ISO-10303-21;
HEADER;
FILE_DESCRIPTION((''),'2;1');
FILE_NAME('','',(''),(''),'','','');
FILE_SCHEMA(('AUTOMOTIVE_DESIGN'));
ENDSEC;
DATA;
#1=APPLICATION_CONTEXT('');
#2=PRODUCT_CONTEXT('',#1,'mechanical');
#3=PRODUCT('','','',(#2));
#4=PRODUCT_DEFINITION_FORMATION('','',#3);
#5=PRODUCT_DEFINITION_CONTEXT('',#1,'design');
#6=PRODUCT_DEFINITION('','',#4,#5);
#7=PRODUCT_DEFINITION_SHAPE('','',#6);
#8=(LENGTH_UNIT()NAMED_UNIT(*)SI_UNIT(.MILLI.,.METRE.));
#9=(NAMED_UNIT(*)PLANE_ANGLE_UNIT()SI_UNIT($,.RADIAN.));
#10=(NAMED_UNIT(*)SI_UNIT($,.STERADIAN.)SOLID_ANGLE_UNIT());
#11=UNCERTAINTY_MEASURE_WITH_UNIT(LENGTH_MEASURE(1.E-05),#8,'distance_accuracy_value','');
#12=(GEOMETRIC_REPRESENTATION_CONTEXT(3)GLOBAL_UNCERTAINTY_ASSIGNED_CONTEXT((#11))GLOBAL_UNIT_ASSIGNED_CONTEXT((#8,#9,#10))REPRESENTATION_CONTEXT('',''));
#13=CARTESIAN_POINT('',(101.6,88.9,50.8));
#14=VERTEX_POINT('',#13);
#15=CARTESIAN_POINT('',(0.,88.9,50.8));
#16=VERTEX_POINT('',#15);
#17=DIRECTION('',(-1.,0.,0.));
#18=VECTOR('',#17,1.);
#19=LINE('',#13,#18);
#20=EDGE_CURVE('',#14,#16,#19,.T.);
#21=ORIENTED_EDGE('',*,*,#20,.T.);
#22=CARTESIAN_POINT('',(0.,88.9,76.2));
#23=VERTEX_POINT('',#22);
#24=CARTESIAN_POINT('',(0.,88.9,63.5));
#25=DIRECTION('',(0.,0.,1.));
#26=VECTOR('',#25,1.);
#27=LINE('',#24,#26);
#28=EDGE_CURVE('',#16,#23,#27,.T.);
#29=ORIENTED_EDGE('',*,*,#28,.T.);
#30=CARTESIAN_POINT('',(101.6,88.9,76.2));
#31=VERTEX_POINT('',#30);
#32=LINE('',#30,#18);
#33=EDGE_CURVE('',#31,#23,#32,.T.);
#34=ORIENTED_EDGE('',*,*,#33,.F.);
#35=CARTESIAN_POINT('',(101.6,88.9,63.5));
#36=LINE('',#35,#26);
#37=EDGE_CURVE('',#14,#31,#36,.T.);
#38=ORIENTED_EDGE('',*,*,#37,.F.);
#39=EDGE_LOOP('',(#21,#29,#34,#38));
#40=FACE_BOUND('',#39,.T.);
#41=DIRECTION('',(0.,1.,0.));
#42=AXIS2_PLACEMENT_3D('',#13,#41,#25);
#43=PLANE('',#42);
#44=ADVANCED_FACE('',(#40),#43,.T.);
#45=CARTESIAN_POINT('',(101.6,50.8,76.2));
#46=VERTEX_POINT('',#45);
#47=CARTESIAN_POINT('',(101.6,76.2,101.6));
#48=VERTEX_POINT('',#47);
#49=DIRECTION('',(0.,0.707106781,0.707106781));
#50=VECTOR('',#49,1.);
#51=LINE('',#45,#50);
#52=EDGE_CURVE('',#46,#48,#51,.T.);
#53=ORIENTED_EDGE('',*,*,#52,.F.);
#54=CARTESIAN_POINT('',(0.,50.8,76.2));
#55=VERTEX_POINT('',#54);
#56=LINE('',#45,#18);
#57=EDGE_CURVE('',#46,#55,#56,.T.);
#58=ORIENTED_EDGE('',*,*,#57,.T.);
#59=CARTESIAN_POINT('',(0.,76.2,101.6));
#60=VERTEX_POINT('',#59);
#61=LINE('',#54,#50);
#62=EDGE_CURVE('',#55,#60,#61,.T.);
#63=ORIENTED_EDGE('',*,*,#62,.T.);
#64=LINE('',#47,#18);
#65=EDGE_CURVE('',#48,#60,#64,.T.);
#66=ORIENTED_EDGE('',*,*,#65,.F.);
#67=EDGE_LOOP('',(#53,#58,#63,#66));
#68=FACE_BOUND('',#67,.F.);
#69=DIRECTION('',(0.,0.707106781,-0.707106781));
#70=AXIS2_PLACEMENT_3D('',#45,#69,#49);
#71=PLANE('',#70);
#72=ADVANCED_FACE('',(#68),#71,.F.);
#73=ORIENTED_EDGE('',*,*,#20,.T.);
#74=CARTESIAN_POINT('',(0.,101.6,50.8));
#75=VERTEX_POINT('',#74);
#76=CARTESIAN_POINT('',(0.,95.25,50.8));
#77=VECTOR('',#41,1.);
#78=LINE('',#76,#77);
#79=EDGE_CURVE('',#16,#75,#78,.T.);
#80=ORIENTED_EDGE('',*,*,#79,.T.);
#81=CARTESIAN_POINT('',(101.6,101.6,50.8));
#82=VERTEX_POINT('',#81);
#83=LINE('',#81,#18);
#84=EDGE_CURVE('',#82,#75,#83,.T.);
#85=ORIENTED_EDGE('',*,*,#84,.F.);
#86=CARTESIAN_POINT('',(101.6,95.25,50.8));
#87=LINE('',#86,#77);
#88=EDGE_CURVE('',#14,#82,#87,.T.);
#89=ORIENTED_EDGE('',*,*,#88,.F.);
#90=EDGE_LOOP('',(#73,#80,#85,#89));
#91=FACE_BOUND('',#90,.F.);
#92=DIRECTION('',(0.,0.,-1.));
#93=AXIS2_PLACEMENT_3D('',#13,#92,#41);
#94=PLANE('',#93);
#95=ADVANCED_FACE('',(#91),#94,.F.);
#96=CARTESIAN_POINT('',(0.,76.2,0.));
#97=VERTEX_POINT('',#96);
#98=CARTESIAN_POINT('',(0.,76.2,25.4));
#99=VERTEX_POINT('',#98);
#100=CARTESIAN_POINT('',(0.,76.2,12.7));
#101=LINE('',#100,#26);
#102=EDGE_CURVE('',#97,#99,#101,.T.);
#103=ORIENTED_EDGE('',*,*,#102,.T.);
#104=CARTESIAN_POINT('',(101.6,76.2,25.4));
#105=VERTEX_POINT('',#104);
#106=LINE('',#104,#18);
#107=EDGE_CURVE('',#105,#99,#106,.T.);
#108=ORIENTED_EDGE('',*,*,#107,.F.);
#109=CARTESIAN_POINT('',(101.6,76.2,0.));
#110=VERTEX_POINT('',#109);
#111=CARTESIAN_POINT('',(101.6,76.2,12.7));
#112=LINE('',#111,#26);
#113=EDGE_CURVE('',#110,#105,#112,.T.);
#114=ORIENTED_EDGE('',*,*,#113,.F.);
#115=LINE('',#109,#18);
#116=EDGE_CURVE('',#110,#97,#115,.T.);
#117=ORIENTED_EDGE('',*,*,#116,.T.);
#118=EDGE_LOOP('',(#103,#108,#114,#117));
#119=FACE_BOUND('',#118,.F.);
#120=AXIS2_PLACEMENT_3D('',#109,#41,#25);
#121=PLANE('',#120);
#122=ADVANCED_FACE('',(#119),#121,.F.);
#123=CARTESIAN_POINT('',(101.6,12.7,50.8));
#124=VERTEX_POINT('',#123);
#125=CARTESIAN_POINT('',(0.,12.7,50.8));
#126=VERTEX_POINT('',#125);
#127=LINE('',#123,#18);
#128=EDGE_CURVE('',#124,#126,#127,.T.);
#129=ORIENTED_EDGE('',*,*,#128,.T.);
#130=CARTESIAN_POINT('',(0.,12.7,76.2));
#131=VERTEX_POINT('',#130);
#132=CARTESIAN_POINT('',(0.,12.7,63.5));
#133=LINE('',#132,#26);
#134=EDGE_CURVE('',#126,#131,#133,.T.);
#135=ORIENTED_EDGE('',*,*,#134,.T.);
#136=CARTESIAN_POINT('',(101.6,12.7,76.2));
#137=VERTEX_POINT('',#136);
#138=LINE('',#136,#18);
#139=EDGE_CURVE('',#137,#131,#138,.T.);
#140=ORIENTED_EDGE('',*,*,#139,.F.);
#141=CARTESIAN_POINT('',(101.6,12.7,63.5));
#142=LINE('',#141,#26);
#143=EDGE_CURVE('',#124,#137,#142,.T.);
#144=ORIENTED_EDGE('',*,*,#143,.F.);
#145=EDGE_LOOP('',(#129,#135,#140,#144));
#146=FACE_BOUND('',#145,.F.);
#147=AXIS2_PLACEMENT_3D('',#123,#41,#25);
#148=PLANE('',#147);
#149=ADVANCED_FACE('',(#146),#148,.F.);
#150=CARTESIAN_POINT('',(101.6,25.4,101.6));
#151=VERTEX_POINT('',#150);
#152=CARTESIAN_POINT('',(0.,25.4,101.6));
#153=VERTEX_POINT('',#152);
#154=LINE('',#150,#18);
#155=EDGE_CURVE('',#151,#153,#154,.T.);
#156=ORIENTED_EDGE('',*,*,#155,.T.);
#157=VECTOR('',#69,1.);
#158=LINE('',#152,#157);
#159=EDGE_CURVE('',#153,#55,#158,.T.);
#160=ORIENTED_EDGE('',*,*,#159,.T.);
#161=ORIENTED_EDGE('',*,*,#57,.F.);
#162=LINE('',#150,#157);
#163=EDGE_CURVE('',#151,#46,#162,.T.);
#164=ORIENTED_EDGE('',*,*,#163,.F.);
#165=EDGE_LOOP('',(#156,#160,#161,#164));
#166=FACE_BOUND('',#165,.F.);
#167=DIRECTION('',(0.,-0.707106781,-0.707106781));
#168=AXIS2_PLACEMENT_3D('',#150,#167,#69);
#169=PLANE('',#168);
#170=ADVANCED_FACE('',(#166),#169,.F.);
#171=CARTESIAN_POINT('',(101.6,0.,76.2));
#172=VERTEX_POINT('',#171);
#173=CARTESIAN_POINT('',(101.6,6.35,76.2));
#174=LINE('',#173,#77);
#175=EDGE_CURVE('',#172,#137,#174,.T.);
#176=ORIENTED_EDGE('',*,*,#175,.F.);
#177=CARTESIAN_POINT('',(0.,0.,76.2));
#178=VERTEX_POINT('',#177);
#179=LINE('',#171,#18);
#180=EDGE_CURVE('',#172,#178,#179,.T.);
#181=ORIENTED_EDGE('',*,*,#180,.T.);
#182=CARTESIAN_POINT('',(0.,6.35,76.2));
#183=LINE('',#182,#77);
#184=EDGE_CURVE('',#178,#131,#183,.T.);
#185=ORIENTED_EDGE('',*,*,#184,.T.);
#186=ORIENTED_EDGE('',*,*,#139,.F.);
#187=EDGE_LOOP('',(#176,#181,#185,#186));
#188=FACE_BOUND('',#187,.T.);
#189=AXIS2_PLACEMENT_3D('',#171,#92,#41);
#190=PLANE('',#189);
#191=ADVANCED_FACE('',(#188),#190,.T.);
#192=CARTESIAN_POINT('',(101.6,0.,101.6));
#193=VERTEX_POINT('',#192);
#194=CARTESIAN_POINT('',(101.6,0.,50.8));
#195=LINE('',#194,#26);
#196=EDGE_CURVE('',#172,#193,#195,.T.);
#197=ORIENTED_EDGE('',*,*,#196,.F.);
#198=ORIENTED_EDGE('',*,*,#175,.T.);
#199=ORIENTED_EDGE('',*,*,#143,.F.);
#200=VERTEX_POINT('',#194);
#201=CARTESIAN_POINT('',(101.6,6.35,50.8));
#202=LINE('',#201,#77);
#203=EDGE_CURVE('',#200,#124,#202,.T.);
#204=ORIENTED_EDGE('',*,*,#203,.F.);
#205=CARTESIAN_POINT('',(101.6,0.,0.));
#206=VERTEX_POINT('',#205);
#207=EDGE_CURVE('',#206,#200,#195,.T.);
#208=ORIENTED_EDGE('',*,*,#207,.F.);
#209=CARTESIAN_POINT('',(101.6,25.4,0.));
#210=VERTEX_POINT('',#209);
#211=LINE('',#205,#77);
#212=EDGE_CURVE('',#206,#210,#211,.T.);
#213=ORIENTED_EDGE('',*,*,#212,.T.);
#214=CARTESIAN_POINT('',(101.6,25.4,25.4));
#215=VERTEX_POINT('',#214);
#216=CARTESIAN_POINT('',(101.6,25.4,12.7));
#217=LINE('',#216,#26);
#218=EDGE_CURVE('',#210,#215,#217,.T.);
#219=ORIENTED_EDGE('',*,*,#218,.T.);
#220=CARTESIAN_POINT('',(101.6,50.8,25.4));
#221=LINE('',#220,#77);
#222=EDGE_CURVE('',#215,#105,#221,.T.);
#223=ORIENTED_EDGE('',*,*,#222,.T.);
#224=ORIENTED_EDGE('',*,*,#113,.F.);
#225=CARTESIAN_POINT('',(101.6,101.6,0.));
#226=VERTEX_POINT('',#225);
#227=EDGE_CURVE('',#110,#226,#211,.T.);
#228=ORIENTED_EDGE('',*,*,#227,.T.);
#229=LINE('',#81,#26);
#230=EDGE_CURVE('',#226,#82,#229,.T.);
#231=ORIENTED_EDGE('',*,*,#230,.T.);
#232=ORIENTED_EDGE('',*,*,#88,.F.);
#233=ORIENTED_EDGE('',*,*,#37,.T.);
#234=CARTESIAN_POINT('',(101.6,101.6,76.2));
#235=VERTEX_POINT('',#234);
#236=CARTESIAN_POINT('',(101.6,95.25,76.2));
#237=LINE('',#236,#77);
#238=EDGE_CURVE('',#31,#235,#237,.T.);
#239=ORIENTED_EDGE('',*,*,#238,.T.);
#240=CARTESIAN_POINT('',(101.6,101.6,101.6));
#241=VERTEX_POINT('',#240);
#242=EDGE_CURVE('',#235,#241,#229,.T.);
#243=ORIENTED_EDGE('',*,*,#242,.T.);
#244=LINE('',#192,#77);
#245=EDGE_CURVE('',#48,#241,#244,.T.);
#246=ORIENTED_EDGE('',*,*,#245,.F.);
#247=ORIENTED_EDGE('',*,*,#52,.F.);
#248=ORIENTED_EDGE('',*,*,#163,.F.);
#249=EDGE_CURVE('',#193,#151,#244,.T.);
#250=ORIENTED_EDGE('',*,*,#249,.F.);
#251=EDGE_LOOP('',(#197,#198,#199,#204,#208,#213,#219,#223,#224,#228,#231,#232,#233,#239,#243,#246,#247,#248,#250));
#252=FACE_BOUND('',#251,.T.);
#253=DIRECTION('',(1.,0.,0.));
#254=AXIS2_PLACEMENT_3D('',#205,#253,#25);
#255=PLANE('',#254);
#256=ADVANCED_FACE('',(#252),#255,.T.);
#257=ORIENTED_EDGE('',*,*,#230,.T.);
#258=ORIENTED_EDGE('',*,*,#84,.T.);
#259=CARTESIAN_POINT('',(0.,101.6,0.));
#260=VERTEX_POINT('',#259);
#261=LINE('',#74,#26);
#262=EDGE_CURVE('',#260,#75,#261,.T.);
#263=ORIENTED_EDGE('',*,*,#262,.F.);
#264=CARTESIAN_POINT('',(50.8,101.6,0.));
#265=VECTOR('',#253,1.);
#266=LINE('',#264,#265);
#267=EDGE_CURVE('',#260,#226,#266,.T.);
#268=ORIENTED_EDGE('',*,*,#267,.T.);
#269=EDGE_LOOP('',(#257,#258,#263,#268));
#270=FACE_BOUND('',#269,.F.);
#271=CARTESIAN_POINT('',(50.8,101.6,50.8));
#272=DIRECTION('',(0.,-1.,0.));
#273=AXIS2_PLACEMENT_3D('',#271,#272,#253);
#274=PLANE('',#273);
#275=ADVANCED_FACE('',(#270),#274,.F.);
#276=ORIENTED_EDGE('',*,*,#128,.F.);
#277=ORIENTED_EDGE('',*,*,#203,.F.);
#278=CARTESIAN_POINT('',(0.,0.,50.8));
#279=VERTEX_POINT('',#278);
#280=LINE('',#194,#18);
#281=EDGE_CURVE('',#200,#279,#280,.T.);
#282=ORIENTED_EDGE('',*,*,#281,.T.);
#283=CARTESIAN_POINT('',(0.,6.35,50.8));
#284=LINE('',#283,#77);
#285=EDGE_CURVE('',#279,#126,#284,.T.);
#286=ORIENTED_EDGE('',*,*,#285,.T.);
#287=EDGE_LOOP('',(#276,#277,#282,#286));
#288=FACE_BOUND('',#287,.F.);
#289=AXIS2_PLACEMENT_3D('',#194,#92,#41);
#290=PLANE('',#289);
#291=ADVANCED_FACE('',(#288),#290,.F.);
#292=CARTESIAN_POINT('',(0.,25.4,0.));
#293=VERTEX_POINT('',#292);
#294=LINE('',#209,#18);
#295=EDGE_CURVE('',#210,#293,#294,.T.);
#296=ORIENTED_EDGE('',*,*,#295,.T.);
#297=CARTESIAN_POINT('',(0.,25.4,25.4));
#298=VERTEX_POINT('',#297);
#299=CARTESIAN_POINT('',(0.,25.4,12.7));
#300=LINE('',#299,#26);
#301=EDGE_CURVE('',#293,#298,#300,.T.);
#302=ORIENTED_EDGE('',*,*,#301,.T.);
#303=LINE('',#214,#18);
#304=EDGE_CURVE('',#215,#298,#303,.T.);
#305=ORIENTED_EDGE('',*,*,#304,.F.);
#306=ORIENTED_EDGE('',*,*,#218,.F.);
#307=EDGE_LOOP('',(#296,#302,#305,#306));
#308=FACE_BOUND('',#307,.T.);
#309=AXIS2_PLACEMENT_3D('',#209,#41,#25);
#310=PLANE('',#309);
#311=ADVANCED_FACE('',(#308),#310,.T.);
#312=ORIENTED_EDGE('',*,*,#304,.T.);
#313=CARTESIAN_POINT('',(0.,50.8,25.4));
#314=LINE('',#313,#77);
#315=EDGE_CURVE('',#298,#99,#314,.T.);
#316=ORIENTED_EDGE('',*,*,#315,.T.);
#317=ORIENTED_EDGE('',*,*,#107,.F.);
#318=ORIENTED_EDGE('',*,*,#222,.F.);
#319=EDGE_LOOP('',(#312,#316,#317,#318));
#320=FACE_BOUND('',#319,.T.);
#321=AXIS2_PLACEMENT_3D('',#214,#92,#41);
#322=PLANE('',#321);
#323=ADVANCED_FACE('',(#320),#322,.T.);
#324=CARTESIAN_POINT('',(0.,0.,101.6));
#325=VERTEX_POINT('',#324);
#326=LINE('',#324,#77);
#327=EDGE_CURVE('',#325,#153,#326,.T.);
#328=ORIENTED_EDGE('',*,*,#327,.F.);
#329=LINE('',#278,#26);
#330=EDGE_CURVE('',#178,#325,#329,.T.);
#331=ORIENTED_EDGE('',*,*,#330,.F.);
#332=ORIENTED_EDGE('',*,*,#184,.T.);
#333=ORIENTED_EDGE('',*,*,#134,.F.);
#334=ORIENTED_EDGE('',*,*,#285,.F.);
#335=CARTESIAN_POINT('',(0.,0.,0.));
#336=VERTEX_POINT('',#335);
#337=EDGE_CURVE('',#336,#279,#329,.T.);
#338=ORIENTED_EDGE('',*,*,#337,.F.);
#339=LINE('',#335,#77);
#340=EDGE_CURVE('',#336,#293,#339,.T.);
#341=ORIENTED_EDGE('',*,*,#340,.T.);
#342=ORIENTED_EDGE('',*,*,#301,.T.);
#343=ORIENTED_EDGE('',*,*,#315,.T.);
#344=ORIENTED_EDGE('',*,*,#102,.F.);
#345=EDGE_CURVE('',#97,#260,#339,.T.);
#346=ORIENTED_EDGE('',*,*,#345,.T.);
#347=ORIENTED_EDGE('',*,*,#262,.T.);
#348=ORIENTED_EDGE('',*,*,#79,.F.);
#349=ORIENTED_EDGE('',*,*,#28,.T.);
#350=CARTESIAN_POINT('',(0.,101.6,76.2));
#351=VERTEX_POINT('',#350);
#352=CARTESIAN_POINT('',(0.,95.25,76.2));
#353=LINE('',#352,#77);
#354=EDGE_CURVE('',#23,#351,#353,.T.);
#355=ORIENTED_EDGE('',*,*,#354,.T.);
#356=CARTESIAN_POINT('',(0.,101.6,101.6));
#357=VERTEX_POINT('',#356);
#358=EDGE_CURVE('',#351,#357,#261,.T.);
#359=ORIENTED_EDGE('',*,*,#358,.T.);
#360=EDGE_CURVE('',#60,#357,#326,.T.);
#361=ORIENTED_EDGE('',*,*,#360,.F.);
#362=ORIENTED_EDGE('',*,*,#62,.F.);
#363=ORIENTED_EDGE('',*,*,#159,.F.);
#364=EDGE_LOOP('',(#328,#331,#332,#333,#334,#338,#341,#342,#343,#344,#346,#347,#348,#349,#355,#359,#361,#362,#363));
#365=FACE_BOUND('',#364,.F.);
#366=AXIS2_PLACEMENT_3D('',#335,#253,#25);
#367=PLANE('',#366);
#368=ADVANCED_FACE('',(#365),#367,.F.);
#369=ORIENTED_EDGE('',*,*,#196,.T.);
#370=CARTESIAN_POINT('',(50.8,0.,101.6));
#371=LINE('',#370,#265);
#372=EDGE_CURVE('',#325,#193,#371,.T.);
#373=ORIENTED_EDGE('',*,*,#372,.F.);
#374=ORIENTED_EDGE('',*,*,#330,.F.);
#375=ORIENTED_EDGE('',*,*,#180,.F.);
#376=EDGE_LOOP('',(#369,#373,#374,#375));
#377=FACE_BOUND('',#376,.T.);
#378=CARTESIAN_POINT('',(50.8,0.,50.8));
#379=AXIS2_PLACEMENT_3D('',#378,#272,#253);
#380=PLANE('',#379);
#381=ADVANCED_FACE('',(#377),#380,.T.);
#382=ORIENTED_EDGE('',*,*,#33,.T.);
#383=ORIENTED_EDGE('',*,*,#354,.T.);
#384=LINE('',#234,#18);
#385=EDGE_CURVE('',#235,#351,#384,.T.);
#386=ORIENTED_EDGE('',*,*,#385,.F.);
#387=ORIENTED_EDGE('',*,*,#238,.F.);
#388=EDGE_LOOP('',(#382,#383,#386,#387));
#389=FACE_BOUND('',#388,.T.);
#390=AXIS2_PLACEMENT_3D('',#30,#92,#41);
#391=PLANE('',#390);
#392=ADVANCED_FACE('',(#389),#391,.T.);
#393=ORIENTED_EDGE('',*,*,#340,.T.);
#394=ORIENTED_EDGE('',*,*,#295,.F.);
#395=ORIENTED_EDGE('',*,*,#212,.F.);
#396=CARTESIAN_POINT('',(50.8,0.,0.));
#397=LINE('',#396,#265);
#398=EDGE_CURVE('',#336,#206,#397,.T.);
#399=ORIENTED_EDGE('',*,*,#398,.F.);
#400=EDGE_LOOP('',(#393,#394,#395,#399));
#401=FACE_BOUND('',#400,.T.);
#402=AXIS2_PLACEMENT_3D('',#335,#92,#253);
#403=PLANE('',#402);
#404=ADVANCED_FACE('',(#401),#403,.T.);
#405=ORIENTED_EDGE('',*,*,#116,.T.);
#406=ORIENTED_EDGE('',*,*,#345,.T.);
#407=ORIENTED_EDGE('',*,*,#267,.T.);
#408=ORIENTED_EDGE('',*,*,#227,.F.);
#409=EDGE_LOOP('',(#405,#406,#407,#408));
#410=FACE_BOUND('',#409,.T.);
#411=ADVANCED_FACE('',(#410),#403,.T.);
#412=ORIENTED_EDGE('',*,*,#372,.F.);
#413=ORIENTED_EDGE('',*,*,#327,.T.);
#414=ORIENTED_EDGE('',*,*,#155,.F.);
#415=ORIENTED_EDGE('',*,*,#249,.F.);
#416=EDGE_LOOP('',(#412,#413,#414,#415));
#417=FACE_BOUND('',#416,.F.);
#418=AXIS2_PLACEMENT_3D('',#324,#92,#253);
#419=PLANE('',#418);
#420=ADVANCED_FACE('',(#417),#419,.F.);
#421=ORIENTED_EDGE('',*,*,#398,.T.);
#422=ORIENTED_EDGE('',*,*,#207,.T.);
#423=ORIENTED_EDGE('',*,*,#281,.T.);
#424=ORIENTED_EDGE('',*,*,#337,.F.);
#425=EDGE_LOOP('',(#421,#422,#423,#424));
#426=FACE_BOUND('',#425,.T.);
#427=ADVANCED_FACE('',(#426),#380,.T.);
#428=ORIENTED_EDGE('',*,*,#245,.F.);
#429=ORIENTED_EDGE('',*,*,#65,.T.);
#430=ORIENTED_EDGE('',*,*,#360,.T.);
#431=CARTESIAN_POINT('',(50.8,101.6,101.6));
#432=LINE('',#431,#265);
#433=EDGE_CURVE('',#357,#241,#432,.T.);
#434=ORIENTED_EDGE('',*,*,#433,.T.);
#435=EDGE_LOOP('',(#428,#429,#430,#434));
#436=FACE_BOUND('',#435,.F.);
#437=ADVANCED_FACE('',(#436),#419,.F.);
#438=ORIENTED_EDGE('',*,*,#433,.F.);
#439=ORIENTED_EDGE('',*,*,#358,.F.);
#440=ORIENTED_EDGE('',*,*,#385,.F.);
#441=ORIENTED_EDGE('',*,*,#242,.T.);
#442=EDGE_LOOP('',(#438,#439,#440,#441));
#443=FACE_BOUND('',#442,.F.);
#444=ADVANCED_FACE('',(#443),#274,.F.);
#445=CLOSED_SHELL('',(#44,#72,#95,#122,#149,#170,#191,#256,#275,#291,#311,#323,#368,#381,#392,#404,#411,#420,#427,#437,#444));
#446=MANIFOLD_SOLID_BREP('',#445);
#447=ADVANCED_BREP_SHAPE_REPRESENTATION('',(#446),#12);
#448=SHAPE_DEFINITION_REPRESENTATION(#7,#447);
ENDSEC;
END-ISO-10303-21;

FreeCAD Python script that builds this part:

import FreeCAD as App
import Part
import Sketcher
Q = App.Units.Quantity


def add_polygon(sketch, points):
    """Adds a closed chain of lines whose ends are joined by coincident constraints."""
    first, n = sketch.GeometryCount, len(points)
    for a, b in zip(points, points[1:] + points[:1]):
        sketch.addGeometry(Part.LineSegment(App.Vector(*a, 0), App.Vector(*b, 0)), False)
    for i in range(n):
        sketch.addConstraint(Sketcher.Constraint("Coincident", first + i, 2, first + (i + 1) % n, 1))

doc = App.newDocument("Part")
body = doc.addObject("PartDesign::Body", "Body")

sketch1 = doc.addObject("Sketcher::SketchObject", "Sketch")
body.addObject(sketch1)
sketch1.AttachmentSupport = (doc.XZ_Plane, [""])
sketch1.MapMode = "FlatFace"
add_polygon(sketch1, [(0, 102), (0, 0), (102, 0), (102, 102)])
sketch1.addConstraint([
    Sketcher.Constraint("Vertical", 0),
    Sketcher.Constraint("Horizontal", 1),
    Sketcher.Constraint("Vertical", 2),
    Sketcher.Constraint("Horizontal", 3),
    Sketcher.Constraint("Coincident", 0, 2, -1, 1),
    Sketcher.Constraint("Equal", 3, 0),
    Sketcher.Constraint("DistanceX", 1, 1, 1, 2, Q("4 in")),
])
pad1 = doc.addObject("PartDesign::Pad", "Pad")
body.addObject(pad1)
pad1.Profile = sketch1
pad1.Length = Q("4 in")
pad1.Reversed = True

sketch2 = doc.addObject("Sketcher::SketchObject", "Sketch001")
body.addObject(sketch2)
sketch2.AttachmentSupport = (doc.YZ_Plane, [""])
sketch2.MapMode = "FlatFace"
sketch2.AttachmentOffset = App.Placement(App.Vector(0, 0, 4 * 25.4), App.Rotation())
add_polygon(sketch2, [(0, 76), (0, 51), (13, 51), (13, 76)])
sketch2.addConstraint([
    Sketcher.Constraint("Vertical", 0),
    Sketcher.Constraint("Horizontal", 1),
    Sketcher.Constraint("Vertical", 2),
    Sketcher.Constraint("Horizontal", 3),
    Sketcher.Constraint("PointOnObject", 0, 2, -2),
    Sketcher.Constraint("DistanceY", 0, 2, 0, 1, Q("1 in")),
    Sketcher.Constraint("DistanceX", 1, 1, 1, 2, Q("0.5 in")),
    Sketcher.Constraint("DistanceY", -1, 1, 0, 2, Q("2 in")),
])
pocket1 = doc.addObject("PartDesign::Pocket", "Pocket")
body.addObject(pocket1)
pocket1.Profile = sketch2
pocket1.Length = Q("4 in")

sketch3 = doc.addObject("Sketcher::SketchObject", "Sketch002")
body.addObject(sketch3)
sketch3.AttachmentSupport = (doc.YZ_Plane, [""])
sketch3.MapMode = "FlatFace"
sketch3.AttachmentOffset = App.Placement(App.Vector(0, 0, 4 * 25.4), App.Rotation())
add_polygon(sketch3, [(89, 76), (89, 51), (102, 51), (102, 76)])
sketch3.addConstraint([
    Sketcher.Constraint("Vertical", 0),
    Sketcher.Constraint("Horizontal", 1),
    Sketcher.Constraint("Vertical", 2),
    Sketcher.Constraint("Horizontal", 3),
    Sketcher.Constraint("DistanceY", 0, 2, 0, 1, Q("1 in")),
    Sketcher.Constraint("DistanceX", 1, 1, 1, 2, Q("0.5 in")),
    Sketcher.Constraint("DistanceY", -1, 1, 0, 2, Q("2 in")),
    Sketcher.Constraint("DistanceX", -1, 1, 1, 2, Q("4 in")),
])
pocket2 = doc.addObject("PartDesign::Pocket", "Pocket001")
body.addObject(pocket2)
pocket2.Profile = sketch3
pocket2.Length = Q("4 in")

sketch4 = doc.addObject("Sketcher::SketchObject", "Sketch003")
body.addObject(sketch4)
sketch4.AttachmentSupport = (doc.YZ_Plane, [""])
sketch4.MapMode = "FlatFace"
sketch4.AttachmentOffset = App.Placement(App.Vector(0, 0, 4 * 25.4), App.Rotation())
add_polygon(sketch4, [(25, 25), (25, 0), (76, 0), (76, 25)])
sketch4.addConstraint([
    Sketcher.Constraint("Vertical", 0),
    Sketcher.Constraint("Horizontal", 1),
    Sketcher.Constraint("Vertical", 2),
    Sketcher.Constraint("Horizontal", 3),
    Sketcher.Constraint("PointOnObject", 0, 2, -1),
    Sketcher.Constraint("DistanceX", 1, 1, 1, 2, Q("2 in")),
    Sketcher.Constraint("DistanceY", 0, 2, 0, 1, Q("1 in")),
    Sketcher.Constraint("DistanceX", -1, 1, 0, 2, Q("1 in")),
])
pocket3 = doc.addObject("PartDesign::Pocket", "Pocket002")
body.addObject(pocket3)
pocket3.Profile = sketch4
pocket3.Length = Q("4 in")

sketch5 = doc.addObject("Sketcher::SketchObject", "Sketch004")
body.addObject(sketch5)
sketch5.AttachmentSupport = (doc.YZ_Plane, [""])
sketch5.MapMode = "FlatFace"
sketch5.AttachmentOffset = App.Placement(App.Vector(0, 0, 4 * 25.4), App.Rotation())
add_polygon(sketch5, [(25, 102), (51, 76), (76, 102)])
sketch5.addConstraint([
    Sketcher.Constraint("Horizontal", 2),
    Sketcher.Constraint("Perpendicular", 0, 1),
    Sketcher.Constraint("Equal", 0, 1),
    Sketcher.Constraint("DistanceX", 2, 2, 2, 1, Q("2 in")),
    Sketcher.Constraint("DistanceX", -1, 1, 0, 2, Q("2 in")),
    Sketcher.Constraint("DistanceY", -1, 1, 0, 2, Q("3 in")),
])
pocket4 = doc.addObject("PartDesign::Pocket", "Pocket003")
body.addObject(pocket4)
pocket4.Profile = sketch5
pocket4.Length = Q("4 in")

doc.recompute()
